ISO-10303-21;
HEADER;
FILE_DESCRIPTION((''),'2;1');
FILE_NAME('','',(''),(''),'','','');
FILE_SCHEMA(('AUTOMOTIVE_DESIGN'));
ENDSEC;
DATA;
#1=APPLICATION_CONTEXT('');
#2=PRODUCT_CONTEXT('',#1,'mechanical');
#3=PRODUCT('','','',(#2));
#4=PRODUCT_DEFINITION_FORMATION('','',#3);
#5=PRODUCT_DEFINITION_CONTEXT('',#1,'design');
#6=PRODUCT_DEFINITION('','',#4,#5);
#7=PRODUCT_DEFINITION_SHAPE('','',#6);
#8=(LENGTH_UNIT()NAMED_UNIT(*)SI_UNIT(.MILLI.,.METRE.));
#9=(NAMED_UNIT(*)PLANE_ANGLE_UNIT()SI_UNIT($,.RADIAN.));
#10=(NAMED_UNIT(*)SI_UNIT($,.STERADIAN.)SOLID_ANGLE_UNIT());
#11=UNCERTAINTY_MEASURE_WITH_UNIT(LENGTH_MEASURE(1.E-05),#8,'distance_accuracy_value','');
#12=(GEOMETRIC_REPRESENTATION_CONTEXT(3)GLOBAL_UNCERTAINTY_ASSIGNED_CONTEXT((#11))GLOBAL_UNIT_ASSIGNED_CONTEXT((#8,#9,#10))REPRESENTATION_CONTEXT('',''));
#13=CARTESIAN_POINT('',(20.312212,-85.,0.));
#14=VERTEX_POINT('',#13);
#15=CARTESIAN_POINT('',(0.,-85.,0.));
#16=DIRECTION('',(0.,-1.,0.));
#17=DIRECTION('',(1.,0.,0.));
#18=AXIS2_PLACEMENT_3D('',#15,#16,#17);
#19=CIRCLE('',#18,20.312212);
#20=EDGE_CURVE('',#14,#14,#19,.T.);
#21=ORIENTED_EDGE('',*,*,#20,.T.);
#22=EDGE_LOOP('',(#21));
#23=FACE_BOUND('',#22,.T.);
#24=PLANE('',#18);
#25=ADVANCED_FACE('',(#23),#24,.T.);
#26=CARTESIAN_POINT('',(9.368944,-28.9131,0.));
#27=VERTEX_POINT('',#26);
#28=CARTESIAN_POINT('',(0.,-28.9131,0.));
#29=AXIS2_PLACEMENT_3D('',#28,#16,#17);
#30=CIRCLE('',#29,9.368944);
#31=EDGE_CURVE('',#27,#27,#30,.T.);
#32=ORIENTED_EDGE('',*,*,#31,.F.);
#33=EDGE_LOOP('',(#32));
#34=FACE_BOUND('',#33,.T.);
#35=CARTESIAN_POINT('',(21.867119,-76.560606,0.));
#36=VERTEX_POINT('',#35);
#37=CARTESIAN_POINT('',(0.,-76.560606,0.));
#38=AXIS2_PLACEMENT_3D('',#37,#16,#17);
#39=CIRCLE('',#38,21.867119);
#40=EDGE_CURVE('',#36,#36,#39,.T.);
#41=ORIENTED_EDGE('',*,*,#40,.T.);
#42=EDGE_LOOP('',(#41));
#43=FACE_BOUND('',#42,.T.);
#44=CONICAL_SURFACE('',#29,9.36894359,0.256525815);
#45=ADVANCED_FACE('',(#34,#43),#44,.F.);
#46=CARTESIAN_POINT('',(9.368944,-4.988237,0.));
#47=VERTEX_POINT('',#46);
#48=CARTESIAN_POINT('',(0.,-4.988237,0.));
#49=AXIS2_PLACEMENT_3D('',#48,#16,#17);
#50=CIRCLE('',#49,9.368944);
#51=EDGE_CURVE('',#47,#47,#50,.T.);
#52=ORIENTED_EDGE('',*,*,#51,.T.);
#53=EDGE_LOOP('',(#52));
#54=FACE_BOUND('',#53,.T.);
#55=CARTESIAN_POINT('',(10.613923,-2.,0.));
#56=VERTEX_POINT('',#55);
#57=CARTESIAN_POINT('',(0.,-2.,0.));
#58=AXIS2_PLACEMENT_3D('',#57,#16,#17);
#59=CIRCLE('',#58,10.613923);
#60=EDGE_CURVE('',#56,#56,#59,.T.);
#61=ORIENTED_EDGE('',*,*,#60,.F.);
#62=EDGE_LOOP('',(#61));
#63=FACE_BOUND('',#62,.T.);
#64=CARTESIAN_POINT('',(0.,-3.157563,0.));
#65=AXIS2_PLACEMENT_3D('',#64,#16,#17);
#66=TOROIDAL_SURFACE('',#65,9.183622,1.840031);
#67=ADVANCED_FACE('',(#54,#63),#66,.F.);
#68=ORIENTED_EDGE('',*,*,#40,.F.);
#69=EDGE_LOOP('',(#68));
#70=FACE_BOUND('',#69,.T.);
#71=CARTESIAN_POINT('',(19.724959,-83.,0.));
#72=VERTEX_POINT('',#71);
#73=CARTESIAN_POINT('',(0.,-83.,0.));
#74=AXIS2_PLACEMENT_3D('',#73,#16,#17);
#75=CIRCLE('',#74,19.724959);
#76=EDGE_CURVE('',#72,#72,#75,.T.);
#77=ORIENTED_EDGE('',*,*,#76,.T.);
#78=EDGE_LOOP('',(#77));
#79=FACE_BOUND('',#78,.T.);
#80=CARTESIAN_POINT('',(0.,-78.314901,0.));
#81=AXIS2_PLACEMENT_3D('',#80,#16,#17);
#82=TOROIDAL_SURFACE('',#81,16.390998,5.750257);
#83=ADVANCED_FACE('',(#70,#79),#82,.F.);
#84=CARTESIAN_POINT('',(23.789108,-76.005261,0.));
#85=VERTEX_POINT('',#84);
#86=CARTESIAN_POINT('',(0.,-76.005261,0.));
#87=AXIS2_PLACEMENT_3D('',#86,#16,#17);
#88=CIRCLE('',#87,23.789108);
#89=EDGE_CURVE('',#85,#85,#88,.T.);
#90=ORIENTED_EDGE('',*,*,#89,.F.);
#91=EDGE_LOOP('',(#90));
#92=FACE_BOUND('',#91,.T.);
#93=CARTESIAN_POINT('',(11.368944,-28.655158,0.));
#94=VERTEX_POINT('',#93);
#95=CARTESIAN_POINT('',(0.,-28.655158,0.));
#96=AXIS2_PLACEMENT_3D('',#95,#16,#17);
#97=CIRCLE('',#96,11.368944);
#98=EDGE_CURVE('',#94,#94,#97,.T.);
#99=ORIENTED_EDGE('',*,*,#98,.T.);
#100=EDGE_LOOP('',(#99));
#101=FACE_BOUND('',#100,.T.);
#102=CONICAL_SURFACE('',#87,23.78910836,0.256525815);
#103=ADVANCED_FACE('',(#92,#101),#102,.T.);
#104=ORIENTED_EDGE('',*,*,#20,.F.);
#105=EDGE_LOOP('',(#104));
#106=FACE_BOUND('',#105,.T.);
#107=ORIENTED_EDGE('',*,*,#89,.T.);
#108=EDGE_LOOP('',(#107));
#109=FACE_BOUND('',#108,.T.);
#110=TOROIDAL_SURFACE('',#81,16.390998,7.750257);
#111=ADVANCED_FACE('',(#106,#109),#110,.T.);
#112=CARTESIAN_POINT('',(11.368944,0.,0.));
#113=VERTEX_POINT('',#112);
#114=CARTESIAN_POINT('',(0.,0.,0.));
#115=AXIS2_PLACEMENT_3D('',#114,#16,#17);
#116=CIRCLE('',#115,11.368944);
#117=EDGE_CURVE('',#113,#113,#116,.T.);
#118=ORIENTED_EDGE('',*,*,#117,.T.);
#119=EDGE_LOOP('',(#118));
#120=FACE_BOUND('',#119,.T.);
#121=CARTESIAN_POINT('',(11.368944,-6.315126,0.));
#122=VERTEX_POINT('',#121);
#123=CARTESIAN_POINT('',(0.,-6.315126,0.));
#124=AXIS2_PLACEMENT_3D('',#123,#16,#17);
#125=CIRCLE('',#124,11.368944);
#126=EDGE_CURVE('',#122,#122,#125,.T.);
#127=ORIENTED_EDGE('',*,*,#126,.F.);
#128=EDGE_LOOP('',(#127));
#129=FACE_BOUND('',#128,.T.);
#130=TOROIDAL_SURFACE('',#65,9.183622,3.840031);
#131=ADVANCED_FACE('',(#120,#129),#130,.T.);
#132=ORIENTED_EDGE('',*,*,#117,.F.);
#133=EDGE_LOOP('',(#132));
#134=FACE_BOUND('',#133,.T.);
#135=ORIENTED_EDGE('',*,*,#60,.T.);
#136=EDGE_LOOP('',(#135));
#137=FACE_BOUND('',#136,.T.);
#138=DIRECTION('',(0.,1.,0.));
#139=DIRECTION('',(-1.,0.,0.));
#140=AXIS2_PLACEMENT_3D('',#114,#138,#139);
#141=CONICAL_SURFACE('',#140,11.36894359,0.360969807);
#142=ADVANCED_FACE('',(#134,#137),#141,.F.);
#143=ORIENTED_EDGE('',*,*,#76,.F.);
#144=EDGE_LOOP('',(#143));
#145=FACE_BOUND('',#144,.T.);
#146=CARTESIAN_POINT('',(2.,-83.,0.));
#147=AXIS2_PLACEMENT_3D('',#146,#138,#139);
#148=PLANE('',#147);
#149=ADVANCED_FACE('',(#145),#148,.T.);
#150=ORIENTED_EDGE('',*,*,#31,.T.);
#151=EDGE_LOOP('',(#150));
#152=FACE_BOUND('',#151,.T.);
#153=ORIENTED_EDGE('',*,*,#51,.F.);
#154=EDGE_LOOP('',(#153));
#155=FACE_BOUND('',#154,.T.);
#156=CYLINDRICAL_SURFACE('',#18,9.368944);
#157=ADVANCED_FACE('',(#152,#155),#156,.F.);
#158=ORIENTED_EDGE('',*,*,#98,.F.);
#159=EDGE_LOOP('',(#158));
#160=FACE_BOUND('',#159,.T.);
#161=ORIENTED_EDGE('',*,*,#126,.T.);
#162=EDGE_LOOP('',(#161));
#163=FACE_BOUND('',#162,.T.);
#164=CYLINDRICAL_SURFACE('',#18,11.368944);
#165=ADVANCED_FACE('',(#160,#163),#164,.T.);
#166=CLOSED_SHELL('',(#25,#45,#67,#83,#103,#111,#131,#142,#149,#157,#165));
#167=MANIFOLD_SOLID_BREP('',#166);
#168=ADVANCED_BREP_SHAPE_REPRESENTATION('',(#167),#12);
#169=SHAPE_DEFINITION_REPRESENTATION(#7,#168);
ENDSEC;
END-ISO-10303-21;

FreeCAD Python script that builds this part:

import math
import FreeCAD as App
import Part
import Sketcher

doc = App.newDocument("Part")
body = doc.addObject("PartDesign::Body", "Body")

sketch1 = doc.addObject("Sketcher::SketchObject", "Sketch")
body.addObject(sketch1)
sketch1.AttachmentSupport = (doc.XY_Plane, [""])
sketch1.MapMode = "FlatFace"
sketch1.addGeometry(Part.LineSegment(App.Vector(11.368944, -28.655158, 0), App.Vector(11.368944, -6.315126, 0)), False)
sketch1.addGeometry(Part.ArcOfCircle(Part.Circle(App.Vector(9.183622, -3.157563, 0), App.Vector(0, 0, 1), 3.840031), math.radians(-55.313228), math.radians(55.313228)), False)
sketch1.addGeometry(Part.LineSegment(App.Vector(11.368944, 0, 0), App.Vector(10.613923, -2, 0)), False)
sketch1.addGeometry(Part.ArcOfCircle(Part.Circle(App.Vector(9.183622, -3.157563, 0), App.Vector(0, 0, 1), 1.840031), math.radians(-84.219557), math.radians(38.983738)), False)
sketch1.addGeometry(Part.LineSegment(App.Vector(9.368944, -4.988237, 0), App.Vector(9.368944, -28.9131, 0)), False)
sketch1.addGeometry(Part.LineSegment(App.Vector(9.368944, -28.9131, 0), App.Vector(21.867119, -76.560606, 0)), False)
sketch1.addGeometry(Part.ArcOfCircle(Part.Circle(App.Vector(16.390998, -78.314901, 0), App.Vector(0, 0, 1), 5.750257), math.radians(-54.563986), math.radians(17.763043)), False)
sketch1.addGeometry(Part.LineSegment(App.Vector(19.724959, -83, 0), App.Vector(0, -83, 0)), False)
sketch1.addGeometry(Part.LineSegment(App.Vector(0, -83, 0), App.Vector(0, -85, 0)), False)
sketch1.addGeometry(Part.LineSegment(App.Vector(0, -85, 0), App.Vector(20.312212, -85, 0)), False)
sketch1.addGeometry(Part.ArcOfCircle(Part.Circle(App.Vector(16.390998, -78.314901, 0), App.Vector(0, 0, 1), 7.750257), math.radians(-59.605801), math.radians(17.338008)), False)
sketch1.addGeometry(Part.LineSegment(App.Vector(23.789108, -76.005261, 0), App.Vector(11.368944, -28.655158, 0)), False)
sketch1.addConstraint(Sketcher.Constraint("Coincident", 0, 2, 1, 1))
sketch1.addConstraint(Sketcher.Constraint("Coincident", 1, 2, 2, 1))
sketch1.addConstraint(Sketcher.Constraint("Coincident", 2, 2, 3, 2))
sketch1.addConstraint(Sketcher.Constraint("Coincident", 3, 1, 4, 1))
sketch1.addConstraint(Sketcher.Constraint("Coincident", 4, 2, 5, 1))
sketch1.addConstraint(Sketcher.Constraint("Coincident", 5, 2, 6, 2))
sketch1.addConstraint(Sketcher.Constraint("Coincident", 6, 1, 7, 1))
sketch1.addConstraint(Sketcher.Constraint("Coincident", 7, 2, 8, 1))
sketch1.addConstraint(Sketcher.Constraint("Coincident", 8, 2, 9, 1))
sketch1.addConstraint(Sketcher.Constraint("Coincident", 9, 2, 10, 1))
sketch1.addConstraint(Sketcher.Constraint("Coincident", 10, 2, 11, 1))
sketch1.addConstraint(Sketcher.Constraint("Coincident", 11, 2, 0, 1))
sketch1.addConstraint(Sketcher.Constraint("Vertical", 0))
sketch1.addConstraint(Sketcher.Constraint("Vertical", 4))
sketch1.addConstraint(Sketcher.Constraint("Horizontal", 7))
sketch1.addConstraint(Sketcher.Constraint("Vertical", 8))
sketch1.addConstraint(Sketcher.Constraint("Horizontal", 9))
sketch1.addConstraint(Sketcher.Constraint("Coincident", 3, 3, 1, 3))
sketch1.addConstraint(Sketcher.Constraint("Coincident", 10, 3, 6, 3))
sketch1.addConstraint(Sketcher.Constraint("PointOnObject", 1, 2, -1))
sketch1.addConstraint(Sketcher.Constraint("PointOnObject", 7, 2, -2))
sketch1.addConstraint(Sketcher.Constraint("Parallel", 5, 11))
sketch1.addConstraint(Sketcher.Constraint("Vertical", 0, 2, 1, 2))
sketch1.addConstraint(Sketcher.Constraint("DistanceY", 8, 2, 8, 1, 2.0))
sketch1.addConstraint(Sketcher.Constraint("DistanceY", 2, 2, -1, 1, 2.0))
sketch1.addConstraint(Sketcher.Constraint("DistanceY", 6, 1, -1, 1, 83.0))
sketch1.addConstraint(Sketcher.Constraint("DistanceX", 3, 1, 0, 2, 2.0))
sketch1.addConstraint(Sketcher.Constraint("Radius", 1, 3.840031))
sketch1.addConstraint(Sketcher.Constraint("Radius", 3, 1.840031))
sketch1.addConstraint(Sketcher.Constraint("Radius", 6, 5.750257))
sketch1.addConstraint(Sketcher.Constraint("Radius", 10, 7.750257))
sketch1.addConstraint(Sketcher.Constraint("DistanceX", 7, 2, 7, 1, 19.724959))
sketch1.addConstraint(Sketcher.Constraint("DistanceY", 6, 3, -1, 1, 78.314901))
sketch1.addConstraint(Sketcher.Constraint("DistanceY", 4, 2, -1, 1, 28.9131))
sketch1.addConstraint(Sketcher.Constraint("DistanceX", 1, 3, 2, 2, 1.430301))
sketch1.addConstraint(Sketcher.Constraint("DistanceY", 0, 1, 0, 2, 22.340033))
sketch1.addConstraint(Sketcher.Constraint("DistanceX", -1, 1, 1, 3, 9.183622))
sketch1.addConstraint(Sketcher.Constraint("DistanceX", -1, 1, 5, 2, 21.867119))
revolution = doc.addObject("PartDesign::Revolution", "Revolution")
body.addObject(revolution)
revolution.Profile = sketch1
revolution.ReferenceAxis = (sketch1, ["V_Axis"])
revolution.Angle = 360

doc.recompute()
